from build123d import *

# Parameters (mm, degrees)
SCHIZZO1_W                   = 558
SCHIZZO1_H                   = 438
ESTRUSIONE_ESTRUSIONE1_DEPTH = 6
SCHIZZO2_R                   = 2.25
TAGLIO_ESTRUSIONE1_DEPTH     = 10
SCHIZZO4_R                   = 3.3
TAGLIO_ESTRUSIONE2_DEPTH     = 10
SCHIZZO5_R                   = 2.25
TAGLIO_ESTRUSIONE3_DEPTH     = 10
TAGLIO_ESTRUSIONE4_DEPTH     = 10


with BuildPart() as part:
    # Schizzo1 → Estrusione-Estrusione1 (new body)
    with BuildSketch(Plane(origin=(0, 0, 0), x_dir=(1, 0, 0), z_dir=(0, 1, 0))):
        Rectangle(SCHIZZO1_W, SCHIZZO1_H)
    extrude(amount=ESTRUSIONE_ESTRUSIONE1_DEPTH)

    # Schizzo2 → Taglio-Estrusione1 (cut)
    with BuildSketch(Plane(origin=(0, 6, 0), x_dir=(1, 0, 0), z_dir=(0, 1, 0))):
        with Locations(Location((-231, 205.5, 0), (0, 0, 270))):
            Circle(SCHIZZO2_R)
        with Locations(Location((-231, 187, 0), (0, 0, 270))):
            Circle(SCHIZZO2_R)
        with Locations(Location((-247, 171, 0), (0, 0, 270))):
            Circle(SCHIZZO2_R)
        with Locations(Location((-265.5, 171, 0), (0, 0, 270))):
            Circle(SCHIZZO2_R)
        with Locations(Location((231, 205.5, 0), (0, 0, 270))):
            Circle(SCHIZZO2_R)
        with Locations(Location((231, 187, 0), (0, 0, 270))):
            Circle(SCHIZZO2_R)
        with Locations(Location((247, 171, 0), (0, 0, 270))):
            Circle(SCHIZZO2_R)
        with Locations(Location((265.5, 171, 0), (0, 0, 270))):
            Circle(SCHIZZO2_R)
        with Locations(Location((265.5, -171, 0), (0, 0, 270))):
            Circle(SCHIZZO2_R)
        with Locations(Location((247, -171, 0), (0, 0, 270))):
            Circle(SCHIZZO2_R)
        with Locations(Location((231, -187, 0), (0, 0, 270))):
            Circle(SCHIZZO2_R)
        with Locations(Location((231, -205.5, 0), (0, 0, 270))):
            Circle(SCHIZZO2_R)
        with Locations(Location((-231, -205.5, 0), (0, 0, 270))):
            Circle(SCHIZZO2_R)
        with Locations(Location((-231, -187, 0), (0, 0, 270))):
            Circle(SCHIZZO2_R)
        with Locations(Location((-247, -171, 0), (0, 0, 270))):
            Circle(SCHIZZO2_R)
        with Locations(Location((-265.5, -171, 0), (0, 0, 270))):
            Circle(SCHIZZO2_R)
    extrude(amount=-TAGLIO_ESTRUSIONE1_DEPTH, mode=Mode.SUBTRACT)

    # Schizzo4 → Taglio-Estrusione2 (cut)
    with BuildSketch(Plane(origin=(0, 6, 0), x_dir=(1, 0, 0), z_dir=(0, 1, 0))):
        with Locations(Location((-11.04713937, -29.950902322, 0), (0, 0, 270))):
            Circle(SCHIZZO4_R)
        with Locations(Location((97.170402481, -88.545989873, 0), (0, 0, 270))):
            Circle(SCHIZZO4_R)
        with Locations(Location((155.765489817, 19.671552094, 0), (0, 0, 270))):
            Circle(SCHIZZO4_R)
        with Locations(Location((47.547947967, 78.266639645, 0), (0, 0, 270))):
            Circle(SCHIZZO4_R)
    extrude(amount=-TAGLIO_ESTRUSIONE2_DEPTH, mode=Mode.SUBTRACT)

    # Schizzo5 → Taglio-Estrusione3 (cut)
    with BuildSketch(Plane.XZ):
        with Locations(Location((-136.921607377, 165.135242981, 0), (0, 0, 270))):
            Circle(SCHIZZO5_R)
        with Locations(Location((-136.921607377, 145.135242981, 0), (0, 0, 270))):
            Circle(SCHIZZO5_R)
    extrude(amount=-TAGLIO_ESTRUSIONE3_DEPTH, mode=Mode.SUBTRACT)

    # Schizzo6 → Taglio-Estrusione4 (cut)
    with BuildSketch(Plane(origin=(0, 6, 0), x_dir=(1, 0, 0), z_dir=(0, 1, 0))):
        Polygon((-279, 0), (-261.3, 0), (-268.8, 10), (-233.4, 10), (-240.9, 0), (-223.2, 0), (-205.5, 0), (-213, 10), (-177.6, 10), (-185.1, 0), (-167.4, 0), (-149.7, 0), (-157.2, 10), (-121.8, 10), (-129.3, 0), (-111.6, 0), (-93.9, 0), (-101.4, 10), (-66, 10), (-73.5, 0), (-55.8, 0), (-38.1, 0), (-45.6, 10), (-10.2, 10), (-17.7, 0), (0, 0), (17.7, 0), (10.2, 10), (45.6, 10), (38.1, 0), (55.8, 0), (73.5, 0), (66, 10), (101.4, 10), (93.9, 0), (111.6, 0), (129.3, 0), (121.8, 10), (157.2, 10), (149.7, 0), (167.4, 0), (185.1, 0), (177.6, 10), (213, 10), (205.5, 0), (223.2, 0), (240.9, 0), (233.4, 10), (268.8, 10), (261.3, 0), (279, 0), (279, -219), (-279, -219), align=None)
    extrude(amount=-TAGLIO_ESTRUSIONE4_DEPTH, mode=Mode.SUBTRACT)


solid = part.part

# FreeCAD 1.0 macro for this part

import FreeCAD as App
import Part
import Sketcher
Q = App.Units.Quantity


def add_polygon(sketch, points):
    """Adds a closed chain of lines whose ends are joined by coincident constraints."""
    first, n = sketch.GeometryCount, len(points)
    for a, b in zip(points, points[1:] + points[:1]):
        sketch.addGeometry(Part.LineSegment(App.Vector(*a, 0), App.Vector(*b, 0)), False)
    for i in range(n):
        sketch.addConstraint(Sketcher.Constraint("Coincident", first + i, 2, first + (i + 1) % n, 1))

doc = App.newDocument("Part")
body = doc.addObject("PartDesign::Body", "Body")

# Sketch on XZ plane
sketch1 = body.newObject("Sketcher::SketchObject", "Sketch")
sketch1.AttachmentSupport = (doc.getObject("XZ_Plane"), [""])
sketch1.MapMode = "FlatFace"
add_polygon(sketch1, [(-279, -219), (-279, 219), (279, 219), (279, -219)])  # lines 0-3
sketch1.addConstraint(Sketcher.Constraint("Vertical", 0))
sketch1.addConstraint(Sketcher.Constraint("Horizontal", 1))
sketch1.addConstraint(Sketcher.Constraint("Vertical", 2))
sketch1.addConstraint(Sketcher.Constraint("Horizontal", 3))
sketch1.addConstraint(Sketcher.Constraint("Symmetric", 0, 2, 2, 2, -1, 1))
sketch1.addConstraint(Sketcher.Constraint("DistanceX", 1, 1, 1, 2, Q("558 mm")))
sketch1.addConstraint(Sketcher.Constraint("DistanceY", 0, 1, 0, 2, Q("438 mm")))
pad1 = body.newObject("PartDesign::Pad", "Pad")
pad1.Profile = sketch1
pad1.Length = 6
pad1.Reversed = True

# Sketch on XZ plane
sketch2 = body.newObject("Sketcher::SketchObject", "Sketch001")
sketch2.AttachmentSupport = (doc.getObject("XZ_Plane"), [""])
sketch2.MapMode = "FlatFace"
sketch2.AttachmentOffset = App.Placement(App.Vector(0, 0, -6), App.Rotation())
sketch2.addGeometry(Part.Circle(App.Vector(-231, -205.5, 0), App.Vector(0, 0, 1), 2.2), False)
sketch2.addGeometry(Part.Circle(App.Vector(-231, -187, 0), App.Vector(0, 0, 1), 2.2), False)
sketch2.addGeometry(Part.Circle(App.Vector(-247, -171, 0), App.Vector(0, 0, 1), 2.2), False)
sketch2.addGeometry(Part.Circle(App.Vector(-265.5, -171, 0), App.Vector(0, 0, 1), 2.2), False)
sketch2.addGeometry(Part.Circle(App.Vector(231, -205.5, 0), App.Vector(0, 0, 1), 2.2), False)
sketch2.addGeometry(Part.Circle(App.Vector(231, -187, 0), App.Vector(0, 0, 1), 2.2), False)
sketch2.addGeometry(Part.Circle(App.Vector(247, -171, 0), App.Vector(0, 0, 1), 2.2), False)
sketch2.addGeometry(Part.Circle(App.Vector(265.5, -171, 0), App.Vector(0, 0, 1), 2.2), False)
sketch2.addGeometry(Part.Circle(App.Vector(265.5, 171, 0), App.Vector(0, 0, 1), 2.2), False)
sketch2.addGeometry(Part.Circle(App.Vector(247, 171, 0), App.Vector(0, 0, 1), 2.2), False)
sketch2.addGeometry(Part.Circle(App.Vector(231, 187, 0), App.Vector(0, 0, 1), 2.2), False)
sketch2.addGeometry(Part.Circle(App.Vector(231, 205.5, 0), App.Vector(0, 0, 1), 2.2), False)
sketch2.addGeometry(Part.Circle(App.Vector(-231, 205.5, 0), App.Vector(0, 0, 1), 2.2), False)
sketch2.addGeometry(Part.Circle(App.Vector(-231, 187, 0), App.Vector(0, 0, 1), 2.2), False)
sketch2.addGeometry(Part.Circle(App.Vector(-247, 171, 0), App.Vector(0, 0, 1), 2.2), False)
sketch2.addGeometry(Part.Circle(App.Vector(-265.5, 171, 0), App.Vector(0, 0, 1), 2.2), False)
sketch2.addConstraint(Sketcher.Constraint("Equal", 0, 1))
sketch2.addConstraint(Sketcher.Constraint("Equal", 1, 2))
sketch2.addConstraint(Sketcher.Constraint("Equal", 2, 3))
sketch2.addConstraint(Sketcher.Constraint("Equal", 3, 4))
sketch2.addConstraint(Sketcher.Constraint("Equal", 4, 5))
sketch2.addConstraint(Sketcher.Constraint("Equal", 5, 6))
sketch2.addConstraint(Sketcher.Constraint("Equal", 6, 7))
sketch2.addConstraint(Sketcher.Constraint("Equal", 7, 8))
sketch2.addConstraint(Sketcher.Constraint("Equal", 8, 9))
sketch2.addConstraint(Sketcher.Constraint("Equal", 9, 10))
sketch2.addConstraint(Sketcher.Constraint("Equal", 10, 11))
sketch2.addConstraint(Sketcher.Constraint("Equal", 11, 12))
sketch2.addConstraint(Sketcher.Constraint("Equal", 12, 13))
sketch2.addConstraint(Sketcher.Constraint("Equal", 13, 14))
sketch2.addConstraint(Sketcher.Constraint("Equal", 14, 15))
sketch2.addConstraint(Sketcher.Constraint("Symmetric", 3, 3, 8, 3, -1, 1))
sketch2.addConstraint(Sketcher.Constraint("Symmetric", 2, 3, 9, 3, -1, 1))
sketch2.addConstraint(Sketcher.Constraint("Symmetric", 1, 3, 10, 3, -1, 1))
sketch2.addConstraint(Sketcher.Constraint("Symmetric", 0, 3, 11, 3, -1, 1))
sketch2.addConstraint(Sketcher.Constraint("Symmetric", 4, 3, 12, 3, -1, 1))
sketch2.addConstraint(Sketcher.Constraint("Symmetric", 5, 3, 13, 3, -1, 1))
sketch2.addConstraint(Sketcher.Constraint("Symmetric", 6, 3, 14, 3, -1, 1))
sketch2.addConstraint(Sketcher.Constraint("Symmetric", 7, 3, 15, 3, -1, 1))
sketch2.addConstraint(Sketcher.Constraint("Symmetric", 0, 3, 4, 3, -2))
sketch2.addConstraint(Sketcher.Constraint("Symmetric", 1, 3, 5, 3, -2))
sketch2.addConstraint(Sketcher.Constraint("Symmetric", 2, 3, 6, 3, -2))
sketch2.addConstraint(Sketcher.Constraint("Symmetric", 3, 3, 7, 3, -2))
sketch2.addConstraint(Sketcher.Constraint("Horizontal", 2, 3, 3, 3))
sketch2.addConstraint(Sketcher.Constraint("Vertical", 0, 3, 1, 3))
sketch2.addConstraint(Sketcher.Constraint("Diameter", 0, Q("4.5 mm")))
sketch2.addConstraint(Sketcher.Constraint("DistanceX", 0, 3, -1, 1, Q("231 mm")))
sketch2.addConstraint(Sketcher.Constraint("DistanceY", 1, 3, -1, 1, Q("187 mm")))
sketch2.addConstraint(Sketcher.Constraint("DistanceX", 2, 3, -1, 1, Q("247 mm")))
sketch2.addConstraint(Sketcher.Constraint("DistanceY", 2, 3, -1, 1, Q("171 mm")))
sketch2.addConstraint(Sketcher.Constraint("DistanceY", 0, 3, 12, 3, Q("411 mm")))
sketch2.addConstraint(Sketcher.Constraint("DistanceX", 3, 3, -1, 1, Q("265.5 mm")))
pocket1 = body.newObject("PartDesign::Pocket", "Pocket")
pocket1.Profile = sketch2
pocket1.Length = 10
pocket1.Reversed = True

# Sketch on XZ plane
sketch3 = body.newObject("Sketcher::SketchObject", "Sketch002")
sketch3.AttachmentSupport = (doc.getObject("XZ_Plane"), [""])
sketch3.MapMode = "FlatFace"
sketch3.AttachmentOffset = App.Placement(App.Vector(0, 0, -6), App.Rotation())
sketch3.addGeometry(Part.Circle(App.Vector(-11, 30, 0), App.Vector(0, 0, 1), 3.3), False)
sketch3.addGeometry(Part.Circle(App.Vector(97.2, 88.5, 0), App.Vector(0, 0, 1), 3.3), False)
sketch3.addGeometry(Part.Circle(App.Vector(155.8, -19.7, 0), App.Vector(0, 0, 1), 3.3), False)
sketch3.addGeometry(Part.Circle(App.Vector(47.5, -78.3, 0), App.Vector(0, 0, 1), 3.3), False)
sketch3.addConstraint(Sketcher.Constraint("Equal", 0, 1))
sketch3.addConstraint(Sketcher.Constraint("Equal", 1, 2))
sketch3.addConstraint(Sketcher.Constraint("Equal", 2, 3))
sketch3.addConstraint(Sketcher.Constraint("Diameter", 0, Q("6.6 mm")))
sketch3.addConstraint(Sketcher.Constraint("DistanceX", 0, 3, -1, 1, Q("11.047139 mm")))
sketch3.addConstraint(Sketcher.Constraint("DistanceY", -1, 1, 1, 3, Q("88.54599 mm")))
sketch3.addConstraint(Sketcher.Constraint("DistanceX", -1, 1, 2, 3, Q("155.76549 mm")))
sketch3.addConstraint(Sketcher.Constraint("DistanceY", 3, 3, -1, 1, Q("78.26664 mm")))
sketch3.addConstraint(Sketcher.Constraint("DistanceX", 0, 3, 1, 3, Q("108.217542 mm")))
sketch3.addConstraint(Sketcher.Constraint("DistanceY", 2, 3, 1, 3, Q("108.217542 mm")))
sketch3.addConstraint(Sketcher.Constraint("DistanceX", 3, 3, 2, 3, Q("108.217542 mm")))
sketch3.addConstraint(Sketcher.Constraint("DistanceY", 3, 3, 0, 3, Q("108.217542 mm")))
pocket2 = body.newObject("PartDesign::Pocket", "Pocket001")
pocket2.Profile = sketch3
pocket2.Length = 10
pocket2.Reversed = True

# Sketch on XZ plane
sketch4 = body.newObject("Sketcher::SketchObject", "Sketch003")
sketch4.AttachmentSupport = (doc.getObject("XZ_Plane"), [""])
sketch4.MapMode = "FlatFace"
sketch4.addGeometry(Part.Circle(App.Vector(-136.9, 165.1, 0), App.Vector(0, 0, 1), 2.2), False)
sketch4.addGeometry(Part.Circle(App.Vector(-136.9, 145.1, 0), App.Vector(0, 0, 1), 2.2), False)
sketch4.addConstraint(Sketcher.Constraint("Equal", 0, 1))
sketch4.addConstraint(Sketcher.Constraint("Vertical", 0, 3, 1, 3))
sketch4.addConstraint(Sketcher.Constraint("Diameter", 0, Q("4.5 mm")))
sketch4.addConstraint(Sketcher.Constraint("DistanceY", 1, 3, 0, 3, Q("20 mm")))
sketch4.addConstraint(Sketcher.Constraint("DistanceX", 0, 3, -1, 1, Q("136.921607 mm")))
sketch4.addConstraint(Sketcher.Constraint("DistanceY", -1, 1, 0, 3, Q("165.135243 mm")))
pocket3 = body.newObject("PartDesign::Pocket", "Pocket002")
pocket3.Profile = sketch4
pocket3.Length = 10

# Sketch on XZ plane
sketch5 = body.newObject("Sketcher::SketchObject", "Sketch004")
sketch5.AttachmentSupport = (doc.getObject("XZ_Plane"), [""])
sketch5.MapMode = "FlatFace"
sketch5.AttachmentOffset = App.Placement(App.Vector(0, 0, -6), App.Rotation())
add_polygon(sketch5, [(-261, 0), (-279, 0), (-279, 219), (279, 219), (279, 0), (261, 0), (269, -10), (233, -10), (241, 0), (206, 0), (213, -10), (178, -10), (185, 0), (150, 0), (157, -10), (122, -10), (129, 0), (94, 0), (101, -10), (66, -10), (74, 0), (38, 0), (46, -10), (10, -10), (18, 0), (-18, 0), (-10, -10), (-46, -10), (-38, 0), (-74, 0), (-66, -10), (-101, -10), (-94, 0), (-129, 0), (-122, -10), (-157, -10), (-150, 0), (-185, 0), (-178, -10), (-213, -10), (-206, 0), (-241, 0), (-233, -10), (-269, -10)])  # lines 0-43
sketch5.addConstraint(Sketcher.Constraint("Horizontal", 0))
sketch5.addConstraint(Sketcher.Constraint("Vertical", 1))
sketch5.addConstraint(Sketcher.Constraint("Horizontal", 2))
sketch5.addConstraint(Sketcher.Constraint("Vertical", 3))
sketch5.addConstraint(Sketcher.Constraint("Horizontal", 4))
sketch5.addConstraint(Sketcher.Constraint("Horizontal", 6))
sketch5.addConstraint(Sketcher.Constraint("Horizontal", 8))
sketch5.addConstraint(Sketcher.Constraint("Horizontal", 10))
sketch5.addConstraint(Sketcher.Constraint("Horizontal", 12))
sketch5.addConstraint(Sketcher.Constraint("Horizontal", 14))
sketch5.addConstraint(Sketcher.Constraint("Horizontal", 16))
sketch5.addConstraint(Sketcher.Constraint("Horizontal", 18))
sketch5.addConstraint(Sketcher.Constraint("Horizontal", 20))
sketch5.addConstraint(Sketcher.Constraint("Horizontal", 22))
sketch5.addConstraint(Sketcher.Constraint("Horizontal", 24))
sketch5.addConstraint(Sketcher.Constraint("Horizontal", 26))
sketch5.addConstraint(Sketcher.Constraint("Horizontal", 28))
sketch5.addConstraint(Sketcher.Constraint("Horizontal", 30))
sketch5.addConstraint(Sketcher.Constraint("Horizontal", 32))
sketch5.addConstraint(Sketcher.Constraint("Horizontal", 34))
sketch5.addConstraint(Sketcher.Constraint("Horizontal", 36))
sketch5.addConstraint(Sketcher.Constraint("Horizontal", 38))
sketch5.addConstraint(Sketcher.Constraint("Horizontal", 40))
sketch5.addConstraint(Sketcher.Constraint("Horizontal", 42))
sketch5.addConstraint(Sketcher.Constraint("Symmetric", 0, 2, 3, 2, -1, 1))
sketch5.addConstraint(Sketcher.Constraint("Symmetric", 23, 2, 24, 2, -1, 1))
sketch5.addConstraint(Sketcher.Constraint("Symmetric", 20, 2, 27, 2, -1, 1))
sketch5.addConstraint(Sketcher.Constraint("Symmetric", 16, 2, 31, 2, -1, 1))
sketch5.addConstraint(Sketcher.Constraint("Symmetric", 12, 2, 35, 2, -1, 1))
sketch5.addConstraint(Sketcher.Constraint("Symmetric", 8, 2, 39, 2, -1, 1))
sketch5.addConstraint(Sketcher.Constraint("Symmetric", 22, 2, 25, 2, -2))
sketch5.addConstraint(Sketcher.Constraint("Symmetric", 19, 2, 28, 2, -2))
sketch5.addConstraint(Sketcher.Constraint("Symmetric", 18, 2, 29, 2, -2))
sketch5.addConstraint(Sketcher.Constraint("Symmetric", 15, 2, 32, 2, -2))
sketch5.addConstraint(Sketcher.Constraint("Symmetric", 14, 2, 33, 2, -2))
sketch5.addConstraint(Sketcher.Constraint("Symmetric", 11, 2, 36, 2, -2))
sketch5.addConstraint(Sketcher.Constraint("Symmetric", 10, 2, 37, 2, -2))
sketch5.addConstraint(Sketcher.Constraint("Symmetric", 7, 2, 40, 2, -2))
sketch5.addConstraint(Sketcher.Constraint("Symmetric", 6, 2, 41, 2, -2))
sketch5.addConstraint(Sketcher.Constraint("Symmetric", 4, 2, 43, 2, -2))
sketch5.addConstraint(Sketcher.Constraint("Parallel", 5, 9))
sketch5.addConstraint(Sketcher.Constraint("Parallel", 7, 11))
sketch5.addConstraint(Sketcher.Constraint("Parallel", 9, 13))
sketch5.addConstraint(Sketcher.Constraint("Parallel", 11, 15))
sketch5.addConstraint(Sketcher.Constraint("Parallel", 13, 17))
sketch5.addConstraint(Sketcher.Constraint("Parallel", 15, 19))
sketch5.addConstraint(Sketcher.Constraint("Parallel", 17, 21))
sketch5.addConstraint(Sketcher.Constraint("Parallel", 19, 23))
sketch5.addConstraint(Sketcher.Constraint("Parallel", 21, 25))
sketch5.addConstraint(Sketcher.Constraint("Parallel", 23, 27))
sketch5.addConstraint(Sketcher.Constraint("Parallel", 27, 31))
sketch5.addConstraint(Sketcher.Constraint("Parallel", 31, 35))
sketch5.addConstraint(Sketcher.Constraint("Parallel", 35, 39))
sketch5.addConstraint(Sketcher.Constraint("Parallel", 39, 43))
sketch5.addConstraint(Sketcher.Constraint("Horizontal", 6, 2, 9, 2))
sketch5.addConstraint(Sketcher.Constraint("Horizontal", 10, 2, 13, 2))
sketch5.addConstraint(Sketcher.Constraint("Horizontal", 14, 2, 17, 2))
sketch5.addConstraint(Sketcher.Constraint("Horizontal", 18, 2, 21, 2))
sketch5.addConstraint(Sketcher.Constraint("Equal", 6, 8))
sketch5.addConstraint(Sketcher.Constraint("Equal", 8, 10))
sketch5.addConstraint(Sketcher.Constraint("Equal", 10, 12))
sketch5.addConstraint(Sketcher.Constraint("Equal", 12, 14))
sketch5.addConstraint(Sketcher.Constraint("Equal", 14, 16))
sketch5.addConstraint(Sketcher.Constraint("Equal", 16, 18))
sketch5.addConstraint(Sketcher.Constraint("Equal", 18, 20))
sketch5.addConstraint(Sketcher.Constraint("Equal", 20, 22))
sketch5.addConstraint(Sketcher.Constraint("Equal", 22, 24))
sketch5.addConstraint(Sketcher.Constraint("DistanceX", 2, 1, 2, 2, Q("558 mm")))
sketch5.addConstraint(Sketcher.Constraint("DistanceY", 1, 1, 1, 2, Q("219 mm")))
sketch5.addConstraint(Sketcher.Constraint("DistanceX", 0, 2, 0, 1, Q("17.7 mm")))
sketch5.addConstraint(Sketcher.Constraint("DistanceX", 6, 2, 6, 1, Q("35.4 mm")))
sketch5.addConstraint(Sketcher.Constraint("DistanceY", 5, 2, -1, 1, Q("10 mm")))
pocket4 = body.newObject("PartDesign::Pocket", "Pocket003")
pocket4.Profile = sketch5
pocket4.Length = 10
pocket4.Reversed = True

doc.recompute()
